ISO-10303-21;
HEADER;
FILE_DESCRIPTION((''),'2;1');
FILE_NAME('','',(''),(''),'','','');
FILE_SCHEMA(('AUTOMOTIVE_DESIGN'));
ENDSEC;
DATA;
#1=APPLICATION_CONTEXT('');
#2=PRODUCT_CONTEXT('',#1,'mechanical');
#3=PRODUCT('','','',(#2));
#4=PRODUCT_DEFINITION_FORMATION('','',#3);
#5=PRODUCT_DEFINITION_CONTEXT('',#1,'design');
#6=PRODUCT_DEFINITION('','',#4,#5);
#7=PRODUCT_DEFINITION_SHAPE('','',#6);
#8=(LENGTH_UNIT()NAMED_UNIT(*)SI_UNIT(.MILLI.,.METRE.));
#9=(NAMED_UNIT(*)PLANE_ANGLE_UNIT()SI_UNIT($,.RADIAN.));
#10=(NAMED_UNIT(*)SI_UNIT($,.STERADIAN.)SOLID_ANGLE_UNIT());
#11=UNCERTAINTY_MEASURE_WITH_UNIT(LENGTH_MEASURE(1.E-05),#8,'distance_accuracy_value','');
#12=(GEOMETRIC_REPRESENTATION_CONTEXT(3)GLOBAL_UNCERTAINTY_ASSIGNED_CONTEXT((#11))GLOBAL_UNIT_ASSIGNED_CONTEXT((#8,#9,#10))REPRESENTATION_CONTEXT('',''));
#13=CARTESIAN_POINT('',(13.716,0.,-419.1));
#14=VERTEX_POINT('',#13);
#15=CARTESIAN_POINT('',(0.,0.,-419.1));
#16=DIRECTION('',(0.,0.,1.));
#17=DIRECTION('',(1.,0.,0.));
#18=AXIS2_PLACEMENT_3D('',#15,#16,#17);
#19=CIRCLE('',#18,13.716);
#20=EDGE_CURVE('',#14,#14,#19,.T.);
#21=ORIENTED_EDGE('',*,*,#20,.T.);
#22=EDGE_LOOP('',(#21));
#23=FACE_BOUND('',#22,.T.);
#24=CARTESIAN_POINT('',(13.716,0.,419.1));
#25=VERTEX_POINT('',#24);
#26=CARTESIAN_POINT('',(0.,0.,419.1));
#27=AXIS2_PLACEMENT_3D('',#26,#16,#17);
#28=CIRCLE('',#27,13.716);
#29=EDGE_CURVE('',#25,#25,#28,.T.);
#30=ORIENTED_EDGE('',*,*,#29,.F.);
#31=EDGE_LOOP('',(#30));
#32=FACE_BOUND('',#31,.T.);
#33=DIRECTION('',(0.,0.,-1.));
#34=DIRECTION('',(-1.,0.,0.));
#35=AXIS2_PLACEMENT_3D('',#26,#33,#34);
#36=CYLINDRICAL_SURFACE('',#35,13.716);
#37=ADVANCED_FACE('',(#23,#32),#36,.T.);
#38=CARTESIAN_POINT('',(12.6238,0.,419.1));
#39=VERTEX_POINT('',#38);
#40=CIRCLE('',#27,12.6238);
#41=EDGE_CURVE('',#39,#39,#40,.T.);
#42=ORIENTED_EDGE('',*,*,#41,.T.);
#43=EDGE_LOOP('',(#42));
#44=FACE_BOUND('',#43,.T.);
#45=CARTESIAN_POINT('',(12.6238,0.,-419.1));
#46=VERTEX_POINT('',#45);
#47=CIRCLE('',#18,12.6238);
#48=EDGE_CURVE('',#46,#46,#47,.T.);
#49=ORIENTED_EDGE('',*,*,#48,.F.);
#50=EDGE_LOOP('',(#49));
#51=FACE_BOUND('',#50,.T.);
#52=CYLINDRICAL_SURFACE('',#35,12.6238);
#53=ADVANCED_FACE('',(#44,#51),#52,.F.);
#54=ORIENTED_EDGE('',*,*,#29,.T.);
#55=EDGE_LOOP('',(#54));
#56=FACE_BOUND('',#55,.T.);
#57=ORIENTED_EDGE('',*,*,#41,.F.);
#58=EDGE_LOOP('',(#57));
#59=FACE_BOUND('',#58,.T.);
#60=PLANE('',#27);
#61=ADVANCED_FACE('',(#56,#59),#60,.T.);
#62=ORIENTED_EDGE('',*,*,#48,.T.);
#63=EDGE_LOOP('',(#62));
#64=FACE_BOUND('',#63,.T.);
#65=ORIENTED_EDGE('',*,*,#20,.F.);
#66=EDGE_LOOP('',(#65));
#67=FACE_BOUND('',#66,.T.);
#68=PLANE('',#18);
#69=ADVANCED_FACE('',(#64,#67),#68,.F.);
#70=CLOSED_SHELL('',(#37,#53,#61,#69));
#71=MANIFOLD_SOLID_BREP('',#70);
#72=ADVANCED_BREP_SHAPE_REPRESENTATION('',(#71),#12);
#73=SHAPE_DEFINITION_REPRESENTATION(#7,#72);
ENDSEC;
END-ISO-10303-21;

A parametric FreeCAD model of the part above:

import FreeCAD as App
import Part
import Sketcher

V = App.Vector
Q = App.Units.Quantity

doc = App.newDocument("Part")
body = doc.addObject("PartDesign::Body", "Body")

# Sketch on XY plane
sketch1 = body.newObject("Sketcher::SketchObject", "Sketch")
sketch1.AttachmentSupport = (doc.getObject("XY_Plane"), [""])
sketch1.MapMode = "FlatFace"
sketch1.addGeometry([
    Part.Circle(V(0, 0, 0), V(0, 0, 1), 14),
    Part.Circle(V(0, 0, 0), V(0, 0, 1), 13),
], False)
sketch1.addConstraint([
    Sketcher.Constraint("Coincident", 0, 3, -1, 1),
    Sketcher.Constraint("Coincident", 1, 3, -1, 1),
    Sketcher.Constraint("Diameter", 0, Q("1.08 in")),
    Sketcher.Constraint("Diameter", 1, Q("0.994 in")),
])
pad1 = body.newObject("PartDesign::Pad", "Pad")
pad1.Profile = sketch1
pad1.Length = Q("33 in")
pad1.Midplane = True

doc.recompute()
